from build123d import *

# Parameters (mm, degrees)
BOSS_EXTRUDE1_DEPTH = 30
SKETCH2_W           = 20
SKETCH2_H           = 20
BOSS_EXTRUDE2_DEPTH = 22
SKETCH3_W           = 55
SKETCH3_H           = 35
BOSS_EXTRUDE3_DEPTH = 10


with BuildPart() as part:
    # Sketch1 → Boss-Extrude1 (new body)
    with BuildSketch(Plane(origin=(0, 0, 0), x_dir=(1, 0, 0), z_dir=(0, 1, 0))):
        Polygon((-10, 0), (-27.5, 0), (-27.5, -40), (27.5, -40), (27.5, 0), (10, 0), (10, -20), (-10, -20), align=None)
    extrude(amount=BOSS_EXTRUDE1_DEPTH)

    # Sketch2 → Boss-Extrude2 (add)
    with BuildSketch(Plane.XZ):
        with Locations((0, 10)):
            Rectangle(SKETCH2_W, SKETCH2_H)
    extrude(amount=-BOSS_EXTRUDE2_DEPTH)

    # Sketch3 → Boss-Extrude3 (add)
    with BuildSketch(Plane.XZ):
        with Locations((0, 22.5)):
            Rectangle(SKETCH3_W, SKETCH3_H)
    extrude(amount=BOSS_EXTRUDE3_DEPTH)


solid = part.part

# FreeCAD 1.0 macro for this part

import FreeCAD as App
import Part
import Sketcher

V = App.Vector

doc = App.newDocument("Part")
params = doc.addObject("Spreadsheet::Sheet", "Params")
for row, (alias, value) in enumerate([
    ("sketch1_width", "55 mm"),
    ("sketch1_width2", "20 mm"),
    ("sketch1_height", "40 mm"),
    ("pad1_length", "30 mm"),
    ("sketch2_width", "20 mm"),
    ("pad2_length", "22 mm"),
    ("sketch3_width", "55 mm"),
    ("sketch3_height", "35 mm"),
    ("pad3_length", "10 mm"),
], start=1):
    params.set(f"A{row}", alias)
    params.set(f"B{row}", "=" + value)
    params.setAlias(f"B{row}", alias)

body = doc.addObject("PartDesign::Body", "Body")

# Sketch on XZ plane
sketch1 = body.newObject("Sketcher::SketchObject", "Sketch")
sketch1.AttachmentSupport = (doc.getObject("XZ_Plane"), [""])
sketch1.MapMode = "FlatFace"
sketch1.addGeometry([
    Part.LineSegment(V(-10, 0, 0), V(-28, 0, 0)),  # 0
    Part.LineSegment(V(-28, 0, 0), V(-28, 40, 0)),  # 1
    Part.LineSegment(V(-28, 40, 0), V(28, 40, 0)),  # 2
    Part.LineSegment(V(28, 40, 0), V(28, 0, 0)),  # 3
    Part.LineSegment(V(28, 0, 0), V(10, 0, 0)),  # 4
    Part.LineSegment(V(10, 0, 0), V(10, 20, 0)),  # 5
    Part.LineSegment(V(10, 20, 0), V(-10, 20, 0)),  # 6
    Part.LineSegment(V(-10, 20, 0), V(-10, 0, 0)),  # 7
], False)
sketch1.addConstraint([
    Sketcher.Constraint("Coincident", 0, 2, 1, 1),
    Sketcher.Constraint("Coincident", 1, 2, 2, 1),
    Sketcher.Constraint("Coincident", 2, 2, 3, 1),
    Sketcher.Constraint("Coincident", 3, 2, 4, 1),
    Sketcher.Constraint("Coincident", 4, 2, 5, 1),
    Sketcher.Constraint("Coincident", 5, 2, 6, 1),
    Sketcher.Constraint("Coincident", 6, 2, 7, 1),
    Sketcher.Constraint("Coincident", 7, 2, 0, 1),
    Sketcher.Constraint("Horizontal", 0),
    Sketcher.Constraint("Vertical", 1),
    Sketcher.Constraint("Horizontal", 2),
    Sketcher.Constraint("Vertical", 3),
    Sketcher.Constraint("Horizontal", 4),
    Sketcher.Constraint("Vertical", 5),
    Sketcher.Constraint("Horizontal", 6),
    Sketcher.Constraint("Vertical", 7),
    Sketcher.Constraint("Symmetric", 0, 2, 3, 2, -1, 1),
    Sketcher.Constraint("Symmetric", 4, 2, 7, 2, -2),
    Sketcher.Constraint("Equal", 6, 5),
    Sketcher.Constraint("DistanceX", 2, 1, 2, 2, 55.0),
    Sketcher.Constraint("DistanceX", 6, 2, 6, 1, 20.0),
    Sketcher.Constraint("DistanceY", 1, 1, 1, 2, 40.0),
])
sketch1.setExpression("Constraints[19]", "Params.sketch1_width")
sketch1.setExpression("Constraints[20]", "Params.sketch1_width2")
sketch1.setExpression("Constraints[21]", "Params.sketch1_height")
pad1 = body.newObject("PartDesign::Pad", "Pad")
pad1.Profile = sketch1
pad1.setExpression("Length", "Params.pad1_length")
pad1.Reversed = True

# Sketch on XZ plane
sketch2 = body.newObject("Sketcher::SketchObject", "Sketch001")
sketch2.AttachmentSupport = (doc.getObject("XZ_Plane"), [""])
sketch2.MapMode = "FlatFace"
sketch2.addGeometry([
    Part.LineSegment(V(-10, 20, 0), V(-10, 0, 0)),
    Part.LineSegment(V(-10, 0, 0), V(10, 0, 0)),
    Part.LineSegment(V(10, 0, 0), V(10, 20, 0)),
    Part.LineSegment(V(10, 20, 0), V(-10, 20, 0)),
], False)
sketch2.addConstraint([
    Sketcher.Constraint("Coincident", 0, 2, 1, 1),
    Sketcher.Constraint("Coincident", 1, 2, 2, 1),
    Sketcher.Constraint("Coincident", 2, 2, 3, 1),
    Sketcher.Constraint("Coincident", 3, 2, 0, 1),
    Sketcher.Constraint("Vertical", 0),
    Sketcher.Constraint("Horizontal", 1),
    Sketcher.Constraint("Vertical", 2),
    Sketcher.Constraint("Horizontal", 3),
    Sketcher.Constraint("Symmetric", 0, 2, 1, 2, -1, 1),
    Sketcher.Constraint("Equal", 3, 0),
    Sketcher.Constraint("DistanceX", 1, 1, 1, 2, 20.0),
])
sketch2.setExpression("Constraints[10]", "Params.sketch2_width")
pad2 = body.newObject("PartDesign::Pad", "Pad001")
pad2.Profile = sketch2
pad2.setExpression("Length", "Params.pad2_length")
pad2.Reversed = True

# Sketch on XZ plane
sketch3 = body.newObject("Sketcher::SketchObject", "Sketch002")
sketch3.AttachmentSupport = (doc.getObject("XZ_Plane"), [""])
sketch3.MapMode = "FlatFace"
sketch3.addGeometry([
    Part.LineSegment(V(-28, 40, 0), V(-28, 5, 0)),
    Part.LineSegment(V(-28, 5, 0), V(28, 5, 0)),
    Part.LineSegment(V(28, 5, 0), V(28, 40, 0)),
    Part.LineSegment(V(28, 40, 0), V(-28, 40, 0)),
], False)
sketch3.addConstraint([
    Sketcher.Constraint("Coincident", 0, 2, 1, 1),
    Sketcher.Constraint("Coincident", 1, 2, 2, 1),
    Sketcher.Constraint("Coincident", 2, 2, 3, 1),
    Sketcher.Constraint("Coincident", 3, 2, 0, 1),
    Sketcher.Constraint("Vertical", 0),
    Sketcher.Constraint("Horizontal", 1),
    Sketcher.Constraint("Vertical", 2),
    Sketcher.Constraint("Horizontal", 3),
    Sketcher.Constraint("DistanceX", 1, 1, 1, 2, 55.0),
    Sketcher.Constraint("DistanceY", 0, 2, 0, 1, 35.0),
    Sketcher.Constraint("DistanceY", -1, 1, 0, 2, 5.0),
    Sketcher.Constraint("DistanceX", 0, 2, -1, 1, 27.5),
])
sketch3.setExpression("Constraints[8]", "Params.sketch3_width")
sketch3.setExpression("Constraints[9]", "Params.sketch3_height")
pad3 = body.newObject("PartDesign::Pad", "Pad002")
pad3.Profile = sketch3
pad3.setExpression("Length", "Params.pad3_length")

doc.recompute()
